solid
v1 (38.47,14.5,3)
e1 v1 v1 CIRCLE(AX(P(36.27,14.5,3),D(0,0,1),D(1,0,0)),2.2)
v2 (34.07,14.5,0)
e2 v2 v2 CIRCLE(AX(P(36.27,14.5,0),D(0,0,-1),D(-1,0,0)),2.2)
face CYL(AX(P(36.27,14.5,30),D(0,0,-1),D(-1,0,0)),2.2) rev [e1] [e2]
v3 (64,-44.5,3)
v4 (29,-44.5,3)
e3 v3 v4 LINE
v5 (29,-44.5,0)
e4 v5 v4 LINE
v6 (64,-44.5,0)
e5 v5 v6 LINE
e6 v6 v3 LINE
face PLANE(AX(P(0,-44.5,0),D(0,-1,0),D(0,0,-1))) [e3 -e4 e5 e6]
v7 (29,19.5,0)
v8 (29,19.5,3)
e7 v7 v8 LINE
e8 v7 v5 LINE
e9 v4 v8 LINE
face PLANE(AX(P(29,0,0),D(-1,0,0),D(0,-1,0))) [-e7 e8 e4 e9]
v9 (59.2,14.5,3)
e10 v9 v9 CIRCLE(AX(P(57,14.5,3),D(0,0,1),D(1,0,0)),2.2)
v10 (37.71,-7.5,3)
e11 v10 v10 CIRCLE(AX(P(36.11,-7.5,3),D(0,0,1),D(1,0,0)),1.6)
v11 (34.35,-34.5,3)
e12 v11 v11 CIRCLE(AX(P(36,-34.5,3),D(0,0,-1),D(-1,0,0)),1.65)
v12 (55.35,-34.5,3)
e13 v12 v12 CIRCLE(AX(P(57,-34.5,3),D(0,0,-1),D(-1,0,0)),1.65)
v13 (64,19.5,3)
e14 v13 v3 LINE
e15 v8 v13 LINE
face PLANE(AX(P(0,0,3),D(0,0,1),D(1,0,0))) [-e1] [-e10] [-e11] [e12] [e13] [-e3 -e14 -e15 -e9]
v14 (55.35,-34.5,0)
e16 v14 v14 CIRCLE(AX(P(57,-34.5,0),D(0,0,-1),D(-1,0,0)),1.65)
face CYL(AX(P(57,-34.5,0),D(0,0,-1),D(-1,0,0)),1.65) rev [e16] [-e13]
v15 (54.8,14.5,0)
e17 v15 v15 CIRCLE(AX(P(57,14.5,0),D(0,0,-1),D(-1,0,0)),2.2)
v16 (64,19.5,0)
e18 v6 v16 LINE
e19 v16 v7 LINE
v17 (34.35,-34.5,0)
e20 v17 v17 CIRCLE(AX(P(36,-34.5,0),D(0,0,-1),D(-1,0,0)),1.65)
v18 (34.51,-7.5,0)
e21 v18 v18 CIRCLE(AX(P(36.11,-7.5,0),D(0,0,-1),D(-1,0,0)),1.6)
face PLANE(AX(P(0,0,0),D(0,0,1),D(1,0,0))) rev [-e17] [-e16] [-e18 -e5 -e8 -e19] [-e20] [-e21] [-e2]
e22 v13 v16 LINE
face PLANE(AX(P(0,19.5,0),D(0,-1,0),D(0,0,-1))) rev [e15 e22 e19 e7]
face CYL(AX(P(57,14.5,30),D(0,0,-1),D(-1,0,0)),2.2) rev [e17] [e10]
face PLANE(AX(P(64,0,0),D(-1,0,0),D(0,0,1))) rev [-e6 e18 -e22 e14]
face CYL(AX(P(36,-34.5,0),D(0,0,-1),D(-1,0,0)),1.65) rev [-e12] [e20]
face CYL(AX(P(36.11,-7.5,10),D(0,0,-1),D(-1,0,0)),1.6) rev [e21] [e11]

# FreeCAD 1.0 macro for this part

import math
import FreeCAD as App
import Part
import Sketcher

V = App.Vector
Q = App.Units.Quantity


def add_polygon(sketch, points):
    """Adds a closed chain of lines whose ends are joined by coincident constraints."""
    first, n = sketch.GeometryCount, len(points)
    for a, b in zip(points, points[1:] + points[:1]):
        sketch.addGeometry(Part.LineSegment(App.Vector(*a, 0), App.Vector(*b, 0)), False)
    for i in range(n):
        sketch.addConstraint(Sketcher.Constraint("Coincident", first + i, 2, first + (i + 1) % n, 1))

doc = App.newDocument("Part")
body = doc.addObject("PartDesign::Body", "Body")

# Sketch on XY plane
sketch1 = body.newObject("Sketcher::SketchObject", "Sketch")
sketch1.AttachmentSupport = (doc.getObject("XY_Plane"), [""])
sketch1.MapMode = "FlatFace"
add_polygon(sketch1, [(-20, 14), (-20, -14), (20, -14), (20, 14)])  # lines 0-3
sketch1.addConstraint(Sketcher.Constraint("Vertical", 0))
sketch1.addConstraint(Sketcher.Constraint("Horizontal", 1))
sketch1.addConstraint(Sketcher.Constraint("Vertical", 2))
sketch1.addConstraint(Sketcher.Constraint("Horizontal", 3))
sketch1.addConstraint(Sketcher.Constraint("Symmetric", 0, 2, 2, 2, -1, 1))
sketch1.addConstraint(Sketcher.Constraint("DistanceX", 1, 1, 1, 2, Q("40 mm")))
sketch1.addConstraint(Sketcher.Constraint("DistanceY", 0, 2, 0, 1, Q("29 mm")))
pad1 = body.newObject("PartDesign::Pad", "Pad")
pad1.Profile = sketch1
pad1.Length = 3

# Sketch on XY plane
sketch2 = body.newObject("Sketcher::SketchObject", "Sketch001")
sketch2.AttachmentSupport = (doc.getObject("XY_Plane"), [""])
sketch2.MapMode = "FlatFace"
sketch2.AttachmentOffset = App.Placement(V(0, 0, 3), App.Rotation())
sketch2.addGeometry(Part.ArcOfCircle(Part.Circle(V(-16.5, 10.5, 0), V(0, 0, 1), 2.1), math.radians(0), math.radians(90)), False)
sketch2.addGeometry(Part.ArcOfCircle(Part.Circle(V(-16.5, 10.5, 0), V(0, 0, 1), 2.1), math.radians(90), math.radians(180)), False)
sketch2.addGeometry(Part.ArcOfCircle(Part.Circle(V(-16.5, 10.5, 0), V(0, 0, 1), 2.1), math.radians(180), math.radians(360)), False)
sketch2.addGeometry(Part.ArcOfCircle(Part.Circle(V(-16.5, -10.5, 0), V(0, 0, 1), 2.1), math.radians(-180), math.radians(-90)), False)
sketch2.addGeometry(Part.ArcOfCircle(Part.Circle(V(-16.5, -10.5, 0), V(0, 0, 1), 2.1), math.radians(-90), math.radians(0)), False)
sketch2.addGeometry(Part.ArcOfCircle(Part.Circle(V(-16.5, -10.5, 0), V(0, 0, 1), 2.1), math.radians(0), math.radians(180)), False)
sketch2.addGeometry(Part.ArcOfCircle(Part.Circle(V(16.5, -10.5, 0), V(0, 0, 1), 2.1), math.radians(0), math.radians(270)), False)
sketch2.addGeometry(Part.ArcOfCircle(Part.Circle(V(16.5, -10.5, 0), V(0, 0, 1), 2.1), math.radians(-90), math.radians(0)), False)
sketch2.addGeometry(Part.ArcOfCircle(Part.Circle(V(16.5, 10.5, 0), V(0, 0, 1), 2.1), math.radians(0), math.radians(90)), False)
sketch2.addGeometry(Part.ArcOfCircle(Part.Circle(V(16.5, 10.5, 0), V(0, 0, 1), 2.1), math.radians(90), math.radians(360)), False)
sketch2.addConstraint(Sketcher.Constraint("Tangent", 0, 2, 1, 1))
sketch2.addConstraint(Sketcher.Constraint("Tangent", 1, 2, 2, 1))
sketch2.addConstraint(Sketcher.Constraint("Tangent", 2, 2, 0, 1))
sketch2.addConstraint(Sketcher.Constraint("Tangent", 3, 2, 4, 1))
sketch2.addConstraint(Sketcher.Constraint("Tangent", 4, 2, 5, 1))
sketch2.addConstraint(Sketcher.Constraint("Tangent", 5, 2, 3, 1))
sketch2.addConstraint(Sketcher.Constraint("Tangent", 6, 1, 7, 2))
sketch2.addConstraint(Sketcher.Constraint("Coincident", 7, 1, 6, 2))
sketch2.addConstraint(Sketcher.Constraint("Tangent", 8, 1, 9, 2))
sketch2.addConstraint(Sketcher.Constraint("Coincident", 9, 1, 8, 2))
sketch2.addConstraint(Sketcher.Constraint("Equal", 2, 3))
sketch2.addConstraint(Sketcher.Constraint("Equal", 5, 6))
sketch2.addConstraint(Sketcher.Constraint("Equal", 7, 8))
sketch2.addConstraint(Sketcher.Constraint("Symmetric", 0, 3, 6, 3, -1, 1))
sketch2.addConstraint(Sketcher.Constraint("Symmetric", 3, 3, 8, 3, -1, 1))
sketch2.addConstraint(Sketcher.Constraint("Symmetric", 3, 3, 6, 3, -2))
sketch2.addConstraint(Sketcher.Constraint("Horizontal", 9, 3, 1, 2))
sketch2.addConstraint(Sketcher.Constraint("Horizontal", 1, 2, 2, 2))
sketch2.addConstraint(Sketcher.Constraint("Horizontal", 7, 3, 4, 2))
sketch2.addConstraint(Sketcher.Constraint("Horizontal", 4, 2, 5, 2))
sketch2.addConstraint(Sketcher.Constraint("Horizontal", 5, 2, 6, 1))
sketch2.addConstraint(Sketcher.Constraint("Horizontal", 2, 2, 8, 1))
sketch2.addConstraint(Sketcher.Constraint("Vertical", 5, 3, 0, 2))
sketch2.addConstraint(Sketcher.Constraint("Vertical", 0, 2, 3, 2))
sketch2.addConstraint(Sketcher.Constraint("Vertical", 9, 3, 7, 1))
sketch2.addConstraint(Sketcher.Constraint("Vertical", 7, 1, 9, 1))
sketch2.addConstraint(Sketcher.Constraint("Radius", 0, Q("2.1 mm")))
sketch2.addConstraint(Sketcher.Constraint("DistanceY", 3, 3, 0, 3, Q("21 mm")))
sketch2.addConstraint(Sketcher.Constraint("DistanceX", 3, 3, 6, 3, Q("33 mm")))
pocket1 = body.newObject("PartDesign::Pocket", "Pocket")
pocket1.Profile = sketch2
pocket1.Length = 3

# Sketch on XZ plane
sketch3 = body.newObject("Sketcher::SketchObject", "Sketch002")
sketch3.AttachmentSupport = (doc.getObject("XZ_Plane"), [""])
sketch3.MapMode = "FlatFace"
sketch3.AttachmentOffset = App.Placement(V(0, 0, 14.5), App.Rotation())
add_polygon(sketch3, [(-20, 3), (-20, 0), (20, 0), (20, 3)])  # lines 0-3
sketch3.addConstraint(Sketcher.Constraint("Vertical", 0))
sketch3.addConstraint(Sketcher.Constraint("Horizontal", 1))
sketch3.addConstraint(Sketcher.Constraint("Vertical", 2))
sketch3.addConstraint(Sketcher.Constraint("Horizontal", 3))
sketch3.addConstraint(Sketcher.Constraint("Symmetric", 0, 2, 1, 2, -1, 1))
sketch3.addConstraint(Sketcher.Constraint("DistanceX", 1, 1, 1, 2, Q("40 mm")))
sketch3.addConstraint(Sketcher.Constraint("DistanceY", 0, 2, 0, 1, Q("3 mm")))
pad2 = body.newObject("PartDesign::Pad", "Pad001")
pad2.Profile = sketch3
pad2.Length = 10

# Sketch on XZ plane
sketch4 = body.newObject("Sketcher::SketchObject", "Sketch003")
sketch4.AttachmentSupport = (doc.getObject("XZ_Plane"), [""])
sketch4.MapMode = "FlatFace"
sketch4.AttachmentOffset = App.Placement(V(0, 0, -14.5), App.Rotation())
add_polygon(sketch4, [(-20, 0), (-20, 3), (20, 3), (20, 0)])  # lines 0-3
sketch4.addConstraint(Sketcher.Constraint("Vertical", 0))
sketch4.addConstraint(Sketcher.Constraint("Horizontal", 1))
sketch4.addConstraint(Sketcher.Constraint("Vertical", 2))
sketch4.addConstraint(Sketcher.Constraint("Horizontal", 3))
sketch4.addConstraint(Sketcher.Constraint("Symmetric", 2, 2, 3, 2, -1, 1))
sketch4.addConstraint(Sketcher.Constraint("DistanceX", 1, 1, 1, 2, Q("40 mm")))
sketch4.addConstraint(Sketcher.Constraint("DistanceY", 0, 1, 0, 2, Q("3 mm")))
pad3 = body.newObject("PartDesign::Pad", "Pad002")
pad3.Profile = sketch4
pad3.Length = 10
pad3.Reversed = True

# Sketch on YZ plane
sketch5 = body.newObject("Sketcher::SketchObject", "Sketch004")
sketch5.AttachmentSupport = (doc.getObject("YZ_Plane"), [""])
sketch5.MapMode = "FlatFace"
sketch5.AttachmentOffset = App.Placement(V(0, 0, 20), App.Rotation())
add_polygon(sketch5, [(24.5, 3), (-24.5, 3), (-24.5, 0), (24.5, 0)])  # lines 0-3
sketch5.addConstraint(Sketcher.Constraint("Horizontal", 0))
sketch5.addConstraint(Sketcher.Constraint("Vertical", 1))
sketch5.addConstraint(Sketcher.Constraint("Horizontal", 2))
sketch5.addConstraint(Sketcher.Constraint("Vertical", 3))
sketch5.addConstraint(Sketcher.Constraint("Symmetric", 1, 2, 2, 2, -1, 1))
sketch5.addConstraint(Sketcher.Constraint("DistanceX", 0, 2, 0, 1, Q("49 mm")))
sketch5.addConstraint(Sketcher.Constraint("DistanceY", 1, 2, 1, 1, Q("3 mm")))
pad4 = body.newObject("PartDesign::Pad", "Pad003")
pad4.Profile = sketch5
pad4.Length = 42

# Sketch on YZ plane
sketch6 = body.newObject("Sketcher::SketchObject", "Sketch005")
sketch6.AttachmentSupport = (doc.getObject("YZ_Plane"), [""])
sketch6.MapMode = "FlatFace"
sketch6.AttachmentOffset = App.Placement(V(0, 0, -20), App.Rotation())
add_polygon(sketch6, [(24.5, 0), (-24.5, 0), (-24.5, 3), (24.5, 3)])  # lines 0-3
sketch6.addConstraint(Sketcher.Constraint("Horizontal", 0))
sketch6.addConstraint(Sketcher.Constraint("Vertical", 1))
sketch6.addConstraint(Sketcher.Constraint("Horizontal", 2))
sketch6.addConstraint(Sketcher.Constraint("Vertical", 3))
sketch6.addConstraint(Sketcher.Constraint("Symmetric", 0, 2, 3, 2, -1, 1))
sketch6.addConstraint(Sketcher.Constraint("DistanceX", 0, 2, 0, 1, Q("49 mm")))
sketch6.addConstraint(Sketcher.Constraint("DistanceY", 1, 1, 1, 2, Q("3 mm")))
pad5 = body.newObject("PartDesign::Pad", "Pad004")
pad5.Profile = sketch6
pad5.Length = 2
pad5.Reversed = True

# Sketch on YZ plane
sketch7 = body.newObject("Sketcher::SketchObject", "Sketch006")
sketch7.AttachmentSupport = (doc.getObject("YZ_Plane"), [""])
sketch7.MapMode = "FlatFace"
sketch7.AttachmentOffset = App.Placement(V(0, 0, 62), App.Rotation())
add_polygon(sketch7, [(24.5, 3), (-24.5, 3), (-24.5, 0), (24.5, 0)])  # lines 0-3
sketch7.addConstraint(Sketcher.Constraint("Horizontal", 0))
sketch7.addConstraint(Sketcher.Constraint("Vertical", 1))
sketch7.addConstraint(Sketcher.Constraint("Horizontal", 2))
sketch7.addConstraint(Sketcher.Constraint("Vertical", 3))
sketch7.addConstraint(Sketcher.Constraint("Symmetric", 1, 2, 2, 2, -1, 1))
sketch7.addConstraint(Sketcher.Constraint("DistanceX", 0, 2, 0, 1, Q("49 mm")))
sketch7.addConstraint(Sketcher.Constraint("DistanceY", 1, 2, 1, 1, Q("3 mm")))
pad6 = body.newObject("PartDesign::Pad", "Pad005")
pad6.Profile = sketch7
pad6.Length = 2

# Sketch on XZ plane
sketch8 = body.newObject("Sketcher::SketchObject", "Sketch007")
sketch8.AttachmentSupport = (doc.getObject("XZ_Plane"), [""])
sketch8.MapMode = "FlatFace"
sketch8.AttachmentOffset = App.Placement(V(0, 0, 24.5), App.Rotation())
add_polygon(sketch8, [(-22, 3), (-22, 0), (64, 0), (64, 3)])  # lines 0-3
sketch8.addConstraint(Sketcher.Constraint("Vertical", 0))
sketch8.addConstraint(Sketcher.Constraint("Horizontal", 1))
sketch8.addConstraint(Sketcher.Constraint("Vertical", 2))
sketch8.addConstraint(Sketcher.Constraint("Horizontal", 3))
sketch8.addConstraint(Sketcher.Constraint("PointOnObject", 0, 2, -1))
sketch8.addConstraint(Sketcher.Constraint("DistanceX", 1, 1, 1, 2, Q("86 mm")))
sketch8.addConstraint(Sketcher.Constraint("DistanceY", 0, 2, 0, 1, Q("3 mm")))
sketch8.addConstraint(Sketcher.Constraint("DistanceX", 0, 2, -1, 1, Q("22 mm")))
pad7 = body.newObject("PartDesign::Pad", "Pad006")
pad7.Profile = sketch8
pad7.Length = 10

# Sketch on XZ plane
sketch9 = body.newObject("Sketcher::SketchObject", "Sketch008")
sketch9.AttachmentSupport = (doc.getObject("XZ_Plane"), [""])
sketch9.MapMode = "FlatFace"
sketch9.AttachmentOffset = App.Placement(V(0, 0, -24.5), App.Rotation())
add_polygon(sketch9, [(-22, 0), (-22, 3), (64, 3), (64, 0)])  # lines 0-3
sketch9.addConstraint(Sketcher.Constraint("Vertical", 0))
sketch9.addConstraint(Sketcher.Constraint("Horizontal", 1))
sketch9.addConstraint(Sketcher.Constraint("Vertical", 2))
sketch9.addConstraint(Sketcher.Constraint("Horizontal", 3))
sketch9.addConstraint(Sketcher.Constraint("PointOnObject", 2, 2, -1))
sketch9.addConstraint(Sketcher.Constraint("DistanceX", 1, 1, 1, 2, Q("86 mm")))
sketch9.addConstraint(Sketcher.Constraint("DistanceY", 0, 1, 0, 2, Q("3 mm")))
sketch9.addConstraint(Sketcher.Constraint("DistanceX", 0, 2, -1, 1, Q("22 mm")))
pad8 = body.newObject("PartDesign::Pad", "Pad007")
pad8.Profile = sketch9
pad8.Length = 10
pad8.Reversed = True

# Sketch on YZ plane
sketch10 = body.newObject("Sketcher::SketchObject", "Sketch009")
sketch10.AttachmentSupport = (doc.getObject("YZ_Plane"), [""])
sketch10.MapMode = "FlatFace"
sketch10.AttachmentOffset = App.Placement(V(0, 0, -22), App.Rotation())
add_polygon(sketch10, [(34.5, 0), (-34.5, 0), (-34.5, 3), (34.5, 3)])  # lines 0-3
sketch10.addConstraint(Sketcher.Constraint("Horizontal", 0))
sketch10.addConstraint(Sketcher.Constraint("Vertical", 1))
sketch10.addConstraint(Sketcher.Constraint("Horizontal", 2))
sketch10.addConstraint(Sketcher.Constraint("Vertical", 3))
sketch10.addConstraint(Sketcher.Constraint("Symmetric", 0, 2, 3, 2, -1, 1))
sketch10.addConstraint(Sketcher.Constraint("DistanceX", 0, 2, 0, 1, Q("69 mm")))
sketch10.addConstraint(Sketcher.Constraint("DistanceY", 1, 1, 1, 2, Q("3 mm")))
pocket2 = body.newObject("PartDesign::Pocket", "Pocket001")
pocket2.Profile = sketch10
pocket2.Length = 43
pocket2.Reversed = True

# Sketch on XZ plane
sketch11 = body.newObject("Sketcher::SketchObject", "Sketch010")
sketch11.AttachmentSupport = (doc.getObject("XZ_Plane"), [""])
sketch11.MapMode = "FlatFace"
sketch11.AttachmentOffset = App.Placement(V(0, 0, 34.5), App.Rotation())
add_polygon(sketch11, [(21, 3), (21, 0), (64, 0), (64, 3)])  # lines 0-3
sketch11.addConstraint(Sketcher.Constraint("Vertical", 0))
sketch11.addConstraint(Sketcher.Constraint("Horizontal", 1))
sketch11.addConstraint(Sketcher.Constraint("Vertical", 2))
sketch11.addConstraint(Sketcher.Constraint("Horizontal", 3))
sketch11.addConstraint(Sketcher.Constraint("PointOnObject", 0, 2, -1))
sketch11.addConstraint(Sketcher.Constraint("DistanceX", 1, 1, 1, 2, Q("43 mm")))
sketch11.addConstraint(Sketcher.Constraint("DistanceY", 0, 2, 0, 1, Q("3 mm")))
sketch11.addConstraint(Sketcher.Constraint("DistanceX", -1, 1, 0, 2, Q("21 mm")))
pad9 = body.newObject("PartDesign::Pad", "Pad008")
pad9.Profile = sketch11
pad9.Length = 20

# Sketch on XZ plane
sketch12 = body.newObject("Sketcher::SketchObject", "Sketch011")
sketch12.AttachmentSupport = (doc.getObject("XZ_Plane"), [""])
sketch12.MapMode = "FlatFace"
sketch12.AttachmentOffset = App.Placement(V(0, 0, 54.5), App.Rotation())
add_polygon(sketch12, [(21, 3), (21, 0), (64, 0), (64, 3)])  # lines 0-3
sketch12.addConstraint(Sketcher.Constraint("Vertical", 0))
sketch12.addConstraint(Sketcher.Constraint("Horizontal", 1))
sketch12.addConstraint(Sketcher.Constraint("Vertical", 2))
sketch12.addConstraint(Sketcher.Constraint("Horizontal", 3))
sketch12.addConstraint(Sketcher.Constraint("PointOnObject", 0, 2, -1))
sketch12.addConstraint(Sketcher.Constraint("DistanceX", 1, 1, 1, 2, Q("43 mm")))
sketch12.addConstraint(Sketcher.Constraint("DistanceY", 0, 2, 0, 1, Q("3 mm")))
sketch12.addConstraint(Sketcher.Constraint("DistanceX", -1, 1, 0, 2, Q("21 mm")))
pad10 = body.newObject("PartDesign::Pad", "Pad009")
pad10.Profile = sketch12
pad10.Length = 10

# Sketch on XZ plane
sketch13 = body.newObject("Sketcher::SketchObject", "Sketch012")
sketch13.AttachmentSupport = (doc.getObject("XZ_Plane"), [""])
sketch13.MapMode = "FlatFace"
sketch13.AttachmentOffset = App.Placement(V(0, 0, 64.5), App.Rotation())
add_polygon(sketch13, [(21, 3), (21, 0), (64, 0), (64, 3)])  # lines 0-3
sketch13.addConstraint(Sketcher.Constraint("Vertical", 0))
sketch13.addConstraint(Sketcher.Constraint("Horizontal", 1))
sketch13.addConstraint(Sketcher.Constraint("Vertical", 2))
sketch13.addConstraint(Sketcher.Constraint("Horizontal", 3))
sketch13.addConstraint(Sketcher.Constraint("PointOnObject", 0, 2, -1))
sketch13.addConstraint(Sketcher.Constraint("DistanceX", 1, 1, 1, 2, Q("43 mm")))
sketch13.addConstraint(Sketcher.Constraint("DistanceY", 0, 2, 0, 1, Q("3 mm")))
sketch13.addConstraint(Sketcher.Constraint("DistanceX", -1, 1, 0, 2, Q("21 mm")))
pocket3 = body.newObject("PartDesign::Pocket", "Pocket002")
pocket3.Profile = sketch13
pocket3.Length = 20

# Sketch on XY plane
sketch14 = body.newObject("Sketcher::SketchObject", "Sketch013")
sketch14.AttachmentSupport = (doc.getObject("XY_Plane"), [""])
sketch14.MapMode = "FlatFace"
sketch14.addGeometry(Part.Circle(V(36.3, 14.5, 0), V(0, 0, 1), 2.2), False)
sketch14.addGeometry(Part.Circle(V(57, 14.5, 0), V(0, 0, 1), 2.2), False)
sketch14.addConstraint(Sketcher.Constraint("Equal", 0, 1))
sketch14.addConstraint(Sketcher.Constraint("Horizontal", 0, 3, 1, 3))
sketch14.addConstraint(Sketcher.Constraint("Diameter", 0, Q("4.4 mm")))
sketch14.addConstraint(Sketcher.Constraint("DistanceX", -1, 1, 1, 3, Q("57 mm")))
sketch14.addConstraint(Sketcher.Constraint("DistanceY", -1, 1, 0, 3, Q("14.5 mm")))
sketch14.addConstraint(Sketcher.Constraint("DistanceX", -1, 1, 0, 3, Q("36.27 mm")))
pocket4 = body.newObject("PartDesign::Pocket", "Pocket003")
pocket4.Profile = sketch14
pocket4.Length = 30
pocket4.Reversed = True

# Sketch on XY plane
sketch15 = body.newObject("Sketcher::SketchObject", "Sketch014")
sketch15.AttachmentSupport = (doc.getObject("XY_Plane"), [""])
sketch15.MapMode = "FlatFace"
sketch15.addGeometry(Part.Circle(V(36.1, -7.5, 0), V(0, 0, 1), 1.6), False)
sketch15.addConstraint(Sketcher.Constraint("Diameter", 0, Q("3.2 mm")))
sketch15.addConstraint(Sketcher.Constraint("DistanceY", 0, 3, -1, 1, Q("7.5 mm")))
sketch15.addConstraint(Sketcher.Constraint("DistanceX", -1, 1, 0, 3, Q("36.11 mm")))
pocket5 = body.newObject("PartDesign::Pocket", "Pocket004")
pocket5.Profile = sketch15
pocket5.Length = 10
pocket5.Reversed = True

# Sketch on YZ plane
sketch16 = body.newObject("Sketcher::SketchObject", "Sketch015")
sketch16.AttachmentSupport = (doc.getObject("YZ_Plane"), [""])
sketch16.MapMode = "FlatFace"
sketch16.AttachmentOffset = App.Placement(V(0, 0, 21), App.Rotation())
add_polygon(sketch16, [(34.5, 0), (-44.5, 0), (-44.5, 3), (34.5, 3)])  # lines 0-3
sketch16.addConstraint(Sketcher.Constraint("Horizontal", 0))
sketch16.addConstraint(Sketcher.Constraint("Vertical", 1))
sketch16.addConstraint(Sketcher.Constraint("Horizontal", 2))
sketch16.addConstraint(Sketcher.Constraint("Vertical", 3))
sketch16.addConstraint(Sketcher.Constraint("PointOnObject", 0, 2, -1))
sketch16.addConstraint(Sketcher.Constraint("DistanceX", 0, 2, 0, 1, Q("79 mm")))
sketch16.addConstraint(Sketcher.Constraint("DistanceY", 1, 1, 1, 2, Q("3 mm")))
sketch16.addConstraint(Sketcher.Constraint("DistanceX", 0, 2, -1, 1, Q("44.5 mm")))
pocket6 = body.newObject("PartDesign::Pocket", "Pocket005")
pocket6.Profile = sketch16
pocket6.Length = 8
pocket6.Reversed = True

# Sketch on XZ plane
sketch17 = body.newObject("Sketcher::SketchObject", "Sketch016")
sketch17.AttachmentSupport = (doc.getObject("XZ_Plane"), [""])
sketch17.MapMode = "FlatFace"
sketch17.AttachmentOffset = App.Placement(V(0, 0, -34.5), App.Rotation())
add_polygon(sketch17, [(29, 0), (29, 3), (64, 3), (64, 0)])  # lines 0-3
sketch17.addConstraint(Sketcher.Constraint("Vertical", 0))
sketch17.addConstraint(Sketcher.Constraint("Horizontal", 1))
sketch17.addConstraint(Sketcher.Constraint("Vertical", 2))
sketch17.addConstraint(Sketcher.Constraint("Horizontal", 3))
sketch17.addConstraint(Sketcher.Constraint("PointOnObject", 2, 2, -1))
sketch17.addConstraint(Sketcher.Constraint("DistanceX", 1, 1, 1, 2, Q("35 mm")))
sketch17.addConstraint(Sketcher.Constraint("DistanceY", 0, 1, 0, 2, Q("3 mm")))
sketch17.addConstraint(Sketcher.Constraint("DistanceX", -1, 1, 0, 2, Q("29 mm")))
pocket7 = body.newObject("PartDesign::Pocket", "Pocket006")
pocket7.Profile = sketch17
pocket7.Length = 15
pocket7.Reversed = True

# Sketch on XY plane
sketch18 = body.newObject("Sketcher::SketchObject", "Sketch017")
sketch18.AttachmentSupport = (doc.getObject("XY_Plane"), [""])
sketch18.MapMode = "FlatFace"
sketch18.addGeometry(Part.ArcOfCircle(Part.Circle(V(36, -34.5, 0), V(0, 0, 1), 1), math.radians(-90), math.radians(180)), False)
sketch18.addGeometry(Part.ArcOfCircle(Part.Circle(V(36, -34.5, 0), V(0, 0, 1), 1), math.radians(-180), math.radians(-90)), False)
sketch18.addGeometry(Part.ArcOfCircle(Part.Circle(V(57, -34.5, 0), V(0, 0, 1), 1), math.radians(-90), math.radians(0)), False)
sketch18.addGeometry(Part.ArcOfCircle(Part.Circle(V(57, -34.5, 0), V(0, 0, 1), 1), math.radians(-180), math.radians(-90)), False)
sketch18.addGeometry(Part.ArcOfCircle(Part.Circle(V(57, -34.5, 0), V(0, 0, 1), 1), math.radians(0), math.radians(180)), False)
sketch18.addConstraint(Sketcher.Constraint("Tangent", 0, 1, 1, 2))
sketch18.addConstraint(Sketcher.Constraint("Coincident", 1, 1, 0, 2))
sketch18.addConstraint(Sketcher.Constraint("Tangent", 2, 1, 3, 2))
sketch18.addConstraint(Sketcher.Constraint("Tangent", 3, 1, 4, 2))
sketch18.addConstraint(Sketcher.Constraint("Tangent", 4, 1, 2, 2))
sketch18.addConstraint(Sketcher.Constraint("Equal", 1, 2))
sketch18.addConstraint(Sketcher.Constraint("Horizontal", 1, 3, 2, 3))
sketch18.addConstraint(Sketcher.Constraint("Horizontal", 4, 3, 1, 1))
sketch18.addConstraint(Sketcher.Constraint("Horizontal", 1, 1, 3, 1))
sketch18.addConstraint(Sketcher.Constraint("Horizontal", 3, 1, 4, 1))
sketch18.addConstraint(Sketcher.Constraint("Vertical", 1, 3, 0, 1))
sketch18.addConstraint(Sketcher.Constraint("Vertical", 4, 3, 2, 1))
sketch18.addConstraint(Sketcher.Constraint("Radius", 0, Q("1 mm")))
sketch18.addConstraint(Sketcher.Constraint("DistanceX", -1, 1, 0, 3, Q("36 mm")))
sketch18.addConstraint(Sketcher.Constraint("DistanceX", -1, 1, 2, 3, Q("57 mm")))
sketch18.addConstraint(Sketcher.Constraint("DistanceY", 0, 3, -1, 1, Q("34.5 mm")))
pocket8 = body.newObject("PartDesign::Pocket", "Pocket007")
pocket8.Profile = sketch18
pocket8.Length = 10
pocket8.Reversed = True

# Sketch on XY plane
sketch19 = body.newObject("Sketcher::SketchObject", "Sketch018")
sketch19.AttachmentSupport = (doc.getObject("XY_Plane"), [""])
sketch19.MapMode = "FlatFace"
sketch19.addGeometry(Part.Circle(V(36, -34.5, 0), V(0, 0, 1), 1.6), False)
sketch19.addGeometry(Part.Circle(V(57, -34.5, 0), V(0, 0, 1), 1.6), False)
sketch19.addConstraint(Sketcher.Constraint("Equal", 0, 1))
sketch19.addConstraint(Sketcher.Constraint("Horizontal", 0, 3, 1, 3))
sketch19.addConstraint(Sketcher.Constraint("Diameter", 0, Q("3.3 mm")))
sketch19.addConstraint(Sketcher.Constraint("DistanceX", -1, 1, 0, 3, Q("36 mm")))
sketch19.addConstraint(Sketcher.Constraint("DistanceX", -1, 1, 1, 3, Q("57 mm")))
sketch19.addConstraint(Sketcher.Constraint("DistanceY", 0, 3, -1, 1, Q("34.5 mm")))
doc.recompute()
hole = body.newObject("PartDesign::Hole", "Hole")
hole.Profile = sketch19
hole.ThreadType = "None"
hole.Diameter = 3.3
hole.DepthType = "ThroughAll"
hole.Reversed = True

doc.recompute()
